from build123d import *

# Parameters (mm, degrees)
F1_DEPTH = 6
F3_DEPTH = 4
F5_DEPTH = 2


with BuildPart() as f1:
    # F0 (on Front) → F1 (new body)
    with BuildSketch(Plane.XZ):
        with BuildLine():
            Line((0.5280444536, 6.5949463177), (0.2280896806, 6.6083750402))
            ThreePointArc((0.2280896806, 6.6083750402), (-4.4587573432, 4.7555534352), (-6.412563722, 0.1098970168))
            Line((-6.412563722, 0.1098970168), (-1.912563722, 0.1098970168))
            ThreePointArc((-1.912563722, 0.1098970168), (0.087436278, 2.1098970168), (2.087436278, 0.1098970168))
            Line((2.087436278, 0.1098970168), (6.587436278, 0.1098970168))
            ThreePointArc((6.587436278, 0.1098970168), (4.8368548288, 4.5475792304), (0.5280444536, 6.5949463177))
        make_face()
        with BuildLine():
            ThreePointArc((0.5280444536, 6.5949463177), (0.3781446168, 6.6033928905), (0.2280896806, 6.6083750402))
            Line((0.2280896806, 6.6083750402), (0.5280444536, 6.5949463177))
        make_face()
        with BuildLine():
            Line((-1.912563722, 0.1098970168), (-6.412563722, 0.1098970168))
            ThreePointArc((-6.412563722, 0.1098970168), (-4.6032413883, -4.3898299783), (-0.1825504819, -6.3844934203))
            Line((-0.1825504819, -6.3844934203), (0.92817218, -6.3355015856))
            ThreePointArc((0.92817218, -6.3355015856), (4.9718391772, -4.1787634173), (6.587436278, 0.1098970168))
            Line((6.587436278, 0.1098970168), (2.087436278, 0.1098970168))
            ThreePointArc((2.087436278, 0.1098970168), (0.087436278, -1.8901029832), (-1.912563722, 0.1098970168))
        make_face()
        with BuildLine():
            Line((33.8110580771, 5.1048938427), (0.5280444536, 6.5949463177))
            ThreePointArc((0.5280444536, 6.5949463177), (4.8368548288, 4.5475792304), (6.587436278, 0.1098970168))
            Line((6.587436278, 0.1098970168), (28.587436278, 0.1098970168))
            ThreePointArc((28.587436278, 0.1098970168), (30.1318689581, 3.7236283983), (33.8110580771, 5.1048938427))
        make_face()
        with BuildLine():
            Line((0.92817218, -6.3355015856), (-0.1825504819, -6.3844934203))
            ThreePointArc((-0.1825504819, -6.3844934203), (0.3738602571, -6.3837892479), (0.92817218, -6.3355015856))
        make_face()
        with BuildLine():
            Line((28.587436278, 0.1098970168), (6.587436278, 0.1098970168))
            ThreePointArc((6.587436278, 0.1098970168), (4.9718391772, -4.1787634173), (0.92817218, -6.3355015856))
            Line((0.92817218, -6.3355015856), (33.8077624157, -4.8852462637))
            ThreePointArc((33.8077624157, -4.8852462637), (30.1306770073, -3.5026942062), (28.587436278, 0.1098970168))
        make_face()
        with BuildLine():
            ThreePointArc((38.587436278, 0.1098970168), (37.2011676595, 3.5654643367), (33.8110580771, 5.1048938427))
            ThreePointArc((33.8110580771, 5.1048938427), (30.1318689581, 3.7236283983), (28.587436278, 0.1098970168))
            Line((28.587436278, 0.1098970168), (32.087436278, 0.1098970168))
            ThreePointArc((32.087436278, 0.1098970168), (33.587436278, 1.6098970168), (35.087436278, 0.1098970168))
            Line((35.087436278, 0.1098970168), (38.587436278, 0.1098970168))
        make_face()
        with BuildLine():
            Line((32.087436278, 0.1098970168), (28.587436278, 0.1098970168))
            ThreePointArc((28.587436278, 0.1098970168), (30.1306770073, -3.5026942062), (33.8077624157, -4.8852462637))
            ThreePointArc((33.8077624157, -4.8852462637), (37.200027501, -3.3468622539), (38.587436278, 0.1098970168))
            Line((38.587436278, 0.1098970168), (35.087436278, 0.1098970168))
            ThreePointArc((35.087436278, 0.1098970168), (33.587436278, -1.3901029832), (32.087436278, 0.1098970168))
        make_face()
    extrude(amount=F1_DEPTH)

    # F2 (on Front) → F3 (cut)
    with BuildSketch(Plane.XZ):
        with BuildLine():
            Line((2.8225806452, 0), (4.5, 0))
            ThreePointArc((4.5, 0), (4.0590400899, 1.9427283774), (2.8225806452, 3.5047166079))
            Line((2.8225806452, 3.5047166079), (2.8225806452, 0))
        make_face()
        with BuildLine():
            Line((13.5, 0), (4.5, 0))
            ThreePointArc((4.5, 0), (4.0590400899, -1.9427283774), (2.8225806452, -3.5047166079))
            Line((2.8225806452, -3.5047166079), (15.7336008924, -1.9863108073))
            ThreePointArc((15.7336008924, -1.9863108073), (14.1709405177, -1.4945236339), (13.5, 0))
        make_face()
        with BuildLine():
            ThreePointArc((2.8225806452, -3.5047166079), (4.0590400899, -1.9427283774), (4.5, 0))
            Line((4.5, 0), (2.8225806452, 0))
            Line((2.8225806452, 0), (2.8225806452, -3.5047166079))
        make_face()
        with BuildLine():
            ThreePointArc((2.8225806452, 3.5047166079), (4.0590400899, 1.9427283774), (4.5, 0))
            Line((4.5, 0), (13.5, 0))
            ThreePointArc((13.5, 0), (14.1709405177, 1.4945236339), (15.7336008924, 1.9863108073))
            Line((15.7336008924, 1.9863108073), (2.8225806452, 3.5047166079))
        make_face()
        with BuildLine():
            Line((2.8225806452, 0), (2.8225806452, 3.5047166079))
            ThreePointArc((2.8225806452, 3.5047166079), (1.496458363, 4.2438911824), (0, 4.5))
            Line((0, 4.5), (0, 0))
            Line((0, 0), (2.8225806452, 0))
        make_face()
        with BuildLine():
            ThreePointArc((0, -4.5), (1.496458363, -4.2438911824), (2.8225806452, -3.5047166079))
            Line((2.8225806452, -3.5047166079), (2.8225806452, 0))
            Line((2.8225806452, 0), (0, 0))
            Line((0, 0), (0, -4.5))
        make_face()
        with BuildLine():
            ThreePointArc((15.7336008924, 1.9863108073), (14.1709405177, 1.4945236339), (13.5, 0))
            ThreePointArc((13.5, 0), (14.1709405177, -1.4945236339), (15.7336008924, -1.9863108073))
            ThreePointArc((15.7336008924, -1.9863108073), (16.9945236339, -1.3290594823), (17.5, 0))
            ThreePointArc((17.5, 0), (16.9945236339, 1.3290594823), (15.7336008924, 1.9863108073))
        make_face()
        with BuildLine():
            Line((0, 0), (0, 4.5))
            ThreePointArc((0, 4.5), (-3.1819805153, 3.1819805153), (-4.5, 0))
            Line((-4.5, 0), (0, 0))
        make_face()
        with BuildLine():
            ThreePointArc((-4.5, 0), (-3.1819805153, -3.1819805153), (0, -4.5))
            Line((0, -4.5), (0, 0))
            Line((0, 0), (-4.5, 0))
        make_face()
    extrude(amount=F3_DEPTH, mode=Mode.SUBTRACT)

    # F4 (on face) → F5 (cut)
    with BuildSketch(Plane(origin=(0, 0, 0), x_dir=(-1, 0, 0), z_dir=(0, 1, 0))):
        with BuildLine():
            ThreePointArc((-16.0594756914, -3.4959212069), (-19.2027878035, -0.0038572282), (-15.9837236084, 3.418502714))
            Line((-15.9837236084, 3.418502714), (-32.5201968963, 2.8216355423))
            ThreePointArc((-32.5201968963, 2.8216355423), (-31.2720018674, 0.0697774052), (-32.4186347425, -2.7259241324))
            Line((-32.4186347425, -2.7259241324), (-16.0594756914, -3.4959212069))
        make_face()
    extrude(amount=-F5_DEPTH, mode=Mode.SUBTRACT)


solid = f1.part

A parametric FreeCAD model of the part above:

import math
import FreeCAD as App
import Part
import Sketcher
from FreeCAD import Vector
Q = App.Units.Quantity

doc = App.newDocument("Part")
body = doc.addObject("PartDesign::Body", "Body")

sketch1 = body.newObject("Sketcher::SketchObject", "Sketch")
sketch1.AttachmentSupport = (doc.getObject("XZ_Plane"), [""])
sketch1.MapMode = "FlatFace"
sketch1.addGeometry(Part.ArcOfCircle(Part.Circle(Vector(0.087436, 0.109897, 0), Vector(0, 0, 1), 6.5), math.radians(88.760081), math.radians(180)), False)
sketch1.addGeometry(Part.ArcOfCircle(Part.Circle(Vector(0.087436, 0.109897, 0), Vector(0, 0, 1), 6.5), math.radians(180), math.radians(267.619453)), False)
sketch1.addGeometry(Part.ArcOfCircle(Part.Circle(Vector(0.087436, 0.109897, 0), Vector(0, 0, 1), 6.5), math.radians(-92.380547), math.radians(-82.568315)), False)
sketch1.addGeometry(Part.LineSegment(Vector(0.928172, -6.335502, 0), Vector(33.807762, -4.885246, 0)), False)
sketch1.addGeometry(Part.ArcOfCircle(Part.Circle(Vector(33.587436, 0.109897, 0), Vector(0, 0, 1), 5), math.radians(-87.474431), math.radians(0)), False)
sketch1.addGeometry(Part.ArcOfCircle(Part.Circle(Vector(33.587436, 0.109897, 0), Vector(0, 0, 1), 5), math.radians(0), math.radians(87.436628)), False)
sketch1.addGeometry(Part.LineSegment(Vector(33.811058, 5.104894, 0), Vector(0.528044, 6.594946, 0)), False)
sketch1.addGeometry(Part.ArcOfCircle(Part.Circle(Vector(0.087436, 0.109897, 0), Vector(0, 0, 1), 6.5), math.radians(86.113175), math.radians(88.760081)), False)
sketch1.addGeometry(Part.Circle(Vector(33.587436, 0.109897, 0), Vector(0, 0, 1), 1.5), False)
sketch1.addGeometry(Part.Circle(Vector(0.087436, 0.109897, 0), Vector(0, 0, 1), 2), False)
sketch1.addConstraint(Sketcher.Constraint("Tangent", 0, 2, 1, 1))
sketch1.addConstraint(Sketcher.Constraint("Tangent", 1, 2, 2, 1))
sketch1.addConstraint(Sketcher.Constraint("Coincident", 2, 2, 3, 1))
sketch1.addConstraint(Sketcher.Constraint("Tangent", 3, 2, 4, 1))
sketch1.addConstraint(Sketcher.Constraint("Tangent", 4, 2, 5, 1))
sketch1.addConstraint(Sketcher.Constraint("Tangent", 5, 2, 6, 1))
sketch1.addConstraint(Sketcher.Constraint("Coincident", 6, 2, 7, 1))
sketch1.addConstraint(Sketcher.Constraint("Tangent", 7, 2, 0, 1))
sketch1.addConstraint(Sketcher.Constraint("Coincident", 2, 3, 0, 3))
sketch1.addConstraint(Sketcher.Constraint("Coincident", 8, 3, 4, 3))
sketch1.addConstraint(Sketcher.Constraint("Coincident", 9, 3, 0, 3))
sketch1.addConstraint(Sketcher.Constraint("Equal", 4, 5))
sketch1.addConstraint(Sketcher.Constraint("Equal", 2, 7))
sketch1.addConstraint(Sketcher.Constraint("Horizontal", 2, 3, 4, 3))
sketch1.addConstraint(Sketcher.Constraint("Horizontal", 9, 3, 0, 2))
sketch1.addConstraint(Sketcher.Constraint("Horizontal", 0, 2, 4, 2))
sketch1.addConstraint(Sketcher.Constraint("Diameter", 8, Q("3 mm")))
sketch1.addConstraint(Sketcher.Constraint("Diameter", 9, Q("4 mm")))
sketch1.addConstraint(Sketcher.Constraint("Radius", 4, Q("5 mm")))
sketch1.addConstraint(Sketcher.Constraint("Radius", 0, Q("6.5 mm")))
sketch1.addConstraint(Sketcher.Constraint("DistanceX", 0, 3, 4, 3, Q("33.5 mm")))
sketch1.addConstraint(Sketcher.Constraint("DistanceY", 2, 2, -1, 1, Q("6.335502 mm")))
sketch1.addConstraint(Sketcher.Constraint("DistanceY", 2, 2, 0, 3, Q("6.445399 mm")))
sketch1.addConstraint(Sketcher.Constraint("Distance", 6, Q("33.316351 mm")))
sketch1.addConstraint(Sketcher.Constraint("DistanceX", 1, 2, -1, 1, Q("0.18255 mm")))
sketch1.addConstraint(Sketcher.Constraint("DistanceX", -1, 1, 5, 2, Q("33.811058 mm")))
sketch1.addConstraint(Sketcher.Constraint("DistanceX", -1, 1, 7, 2, Q("0.22809 mm")))
pad1 = body.newObject("PartDesign::Pad", "Pad")
pad1.Profile = sketch1
pad1.Length = 6

sketch2 = body.newObject("Sketcher::SketchObject", "Sketch001")
sketch2.AttachmentSupport = (doc.getObject("XZ_Plane"), [""])
sketch2.MapMode = "FlatFace"
sketch2.addGeometry(Part.LineSegment(Vector(2.822581, -3.504717, 0), Vector(15.733601, -1.986311, 0)), False)
sketch2.addGeometry(Part.ArcOfCircle(Part.Circle(Vector(15.5, 0, 0), Vector(0, 0, 1), 2), math.radians(-83.292517), math.radians(0)), False)
sketch2.addGeometry(Part.ArcOfCircle(Part.Circle(Vector(15.5, 0, 0), Vector(0, 0, 1), 2), math.radians(0), math.radians(83.292517)), False)
sketch2.addGeometry(Part.LineSegment(Vector(15.733601, 1.986311, 0), Vector(2.822581, 3.504717, 0)), False)
sketch2.addGeometry(Part.ArcOfCircle(Part.Circle(Vector(0, 0, 0), Vector(0, 0, 1), 4.5), math.radians(51.153202), math.radians(90)), False)
sketch2.addGeometry(Part.ArcOfCircle(Part.Circle(Vector(0, 0, 0), Vector(0, 0, 1), 4.5), math.radians(90), math.radians(180)), False)
sketch2.addGeometry(Part.ArcOfCircle(Part.Circle(Vector(0, 0, 0), Vector(0, 0, 1), 4.5), math.radians(180), math.radians(270)), False)
sketch2.addGeometry(Part.ArcOfCircle(Part.Circle(Vector(0, 0, 0), Vector(0, 0, 1), 4.5), math.radians(-90), math.radians(-51.153202)), False)
sketch2.addConstraint(Sketcher.Constraint("Tangent", 0, 2, 1, 1))
sketch2.addConstraint(Sketcher.Constraint("Tangent", 1, 2, 2, 1))
sketch2.addConstraint(Sketcher.Constraint("Tangent", 2, 2, 3, 1))
sketch2.addConstraint(Sketcher.Constraint("Coincident", 3, 2, 4, 1))
sketch2.addConstraint(Sketcher.Constraint("Tangent", 4, 2, 5, 1))
sketch2.addConstraint(Sketcher.Constraint("Tangent", 5, 2, 6, 1))
sketch2.addConstraint(Sketcher.Constraint("Tangent", 6, 2, 7, 1))
sketch2.addConstraint(Sketcher.Constraint("Coincident", 7, 2, 0, 1))
sketch2.addConstraint(Sketcher.Constraint("Coincident", 4, 3, -1, 1))
sketch2.addConstraint(Sketcher.Constraint("Coincident", 6, 3, -1, 1))
sketch2.addConstraint(Sketcher.Constraint("Equal", 1, 2))
sketch2.addConstraint(Sketcher.Constraint("Equal", 6, 7))
sketch2.addConstraint(Sketcher.Constraint("Symmetric", 0, 2, 2, 2, -1))
sketch2.addConstraint(Sketcher.Constraint("PointOnObject", 1, 2, -1))
sketch2.addConstraint(Sketcher.Constraint("PointOnObject", 4, 2, -2))
sketch2.addConstraint(Sketcher.Constraint("PointOnObject", 5, 2, -1))
sketch2.addConstraint(Sketcher.Constraint("PointOnObject", 6, 2, -2))
sketch2.addConstraint(Sketcher.Constraint("Radius", 1, Q("2 mm")))
sketch2.addConstraint(Sketcher.Constraint("Radius", 4, Q("4.5 mm")))
sketch2.addConstraint(Sketcher.Constraint("Distance", 0, Q("13 mm")))
sketch2.addConstraint(Sketcher.Constraint("DistanceX", -1, 1, 1, 3, Q("15.5 mm")))
pocket1 = body.newObject("PartDesign::Pocket", "Pocket")
pocket1.Profile = sketch2
pocket1.Length = 4
pocket1.Reversed = True

sketch3 = body.newObject("Sketcher::SketchObject", "Sketch002")
sketch3.AttachmentSupport = (doc.getObject("XZ_Plane"), [""])
sketch3.MapMode = "FlatFace"
sketch3.addGeometry(Part.ArcOfCircle(Part.Circle(Vector(15.733601, -0.041864, 0), Vector(0, 0, 1), 3.469395), math.radians(-84.610353), math.radians(85.865729)), False)
sketch3.addGeometry(Part.LineSegment(Vector(15.983724, 3.418503, 0), Vector(32.520197, 2.821636, 0)), False)
sketch3.addGeometry(Part.ArcOfCircle(Part.Circle(Vector(35.083405, 0, 0), Vector(0, 0, 1), 3.812042), math.radians(132.252391), math.radians(225.649954)), False)
sketch3.addGeometry(Part.LineSegment(Vector(32.418635, -2.725924, 0), Vector(16.059476, -3.495921, 0)), False)
sketch3.addConstraint(Sketcher.Constraint("Coincident", 0, 2, 1, 1))
sketch3.addConstraint(Sketcher.Constraint("Coincident", 1, 2, 2, 1))
sketch3.addConstraint(Sketcher.Constraint("Coincident", 2, 2, 3, 1))
sketch3.addConstraint(Sketcher.Constraint("Coincident", 3, 2, 0, 1))
sketch3.addConstraint(Sketcher.Constraint("PointOnObject", 2, 3, -1))
sketch3.addConstraint(Sketcher.Constraint("Radius", 2, Q("3.812042 mm")))
sketch3.addConstraint(Sketcher.Constraint("Radius", 0, Q("3.469395 mm")))
sketch3.addConstraint(Sketcher.Constraint("DistanceX", -1, 1, 0, 3, Q("15.733601 mm")))
sketch3.addConstraint(Sketcher.Constraint("DistanceY", 0, 3, 1, 2, Q("2.8635 mm")))
sketch3.addConstraint(Sketcher.Constraint("Distance", 1, Q("16.547241 mm")))
sketch3.addConstraint(Sketcher.Constraint("Distance", 3, Q("16.37727 mm")))
sketch3.addConstraint(Sketcher.Constraint("DistanceY", 3, 2, -1, 1, Q("3.495921 mm")))
sketch3.addConstraint(Sketcher.Constraint("DistanceX", 0, 2, 2, 3, Q("19.099681 mm")))
sketch3.addConstraint(Sketcher.Constraint("DistanceX", 2, 2, 2, 3, Q("2.66477 mm")))
pocket2 = body.newObject("PartDesign::Pocket", "Pocket001")
pocket2.Profile = sketch3
pocket2.Length = 2
pocket2.Reversed = True

doc.recompute()
